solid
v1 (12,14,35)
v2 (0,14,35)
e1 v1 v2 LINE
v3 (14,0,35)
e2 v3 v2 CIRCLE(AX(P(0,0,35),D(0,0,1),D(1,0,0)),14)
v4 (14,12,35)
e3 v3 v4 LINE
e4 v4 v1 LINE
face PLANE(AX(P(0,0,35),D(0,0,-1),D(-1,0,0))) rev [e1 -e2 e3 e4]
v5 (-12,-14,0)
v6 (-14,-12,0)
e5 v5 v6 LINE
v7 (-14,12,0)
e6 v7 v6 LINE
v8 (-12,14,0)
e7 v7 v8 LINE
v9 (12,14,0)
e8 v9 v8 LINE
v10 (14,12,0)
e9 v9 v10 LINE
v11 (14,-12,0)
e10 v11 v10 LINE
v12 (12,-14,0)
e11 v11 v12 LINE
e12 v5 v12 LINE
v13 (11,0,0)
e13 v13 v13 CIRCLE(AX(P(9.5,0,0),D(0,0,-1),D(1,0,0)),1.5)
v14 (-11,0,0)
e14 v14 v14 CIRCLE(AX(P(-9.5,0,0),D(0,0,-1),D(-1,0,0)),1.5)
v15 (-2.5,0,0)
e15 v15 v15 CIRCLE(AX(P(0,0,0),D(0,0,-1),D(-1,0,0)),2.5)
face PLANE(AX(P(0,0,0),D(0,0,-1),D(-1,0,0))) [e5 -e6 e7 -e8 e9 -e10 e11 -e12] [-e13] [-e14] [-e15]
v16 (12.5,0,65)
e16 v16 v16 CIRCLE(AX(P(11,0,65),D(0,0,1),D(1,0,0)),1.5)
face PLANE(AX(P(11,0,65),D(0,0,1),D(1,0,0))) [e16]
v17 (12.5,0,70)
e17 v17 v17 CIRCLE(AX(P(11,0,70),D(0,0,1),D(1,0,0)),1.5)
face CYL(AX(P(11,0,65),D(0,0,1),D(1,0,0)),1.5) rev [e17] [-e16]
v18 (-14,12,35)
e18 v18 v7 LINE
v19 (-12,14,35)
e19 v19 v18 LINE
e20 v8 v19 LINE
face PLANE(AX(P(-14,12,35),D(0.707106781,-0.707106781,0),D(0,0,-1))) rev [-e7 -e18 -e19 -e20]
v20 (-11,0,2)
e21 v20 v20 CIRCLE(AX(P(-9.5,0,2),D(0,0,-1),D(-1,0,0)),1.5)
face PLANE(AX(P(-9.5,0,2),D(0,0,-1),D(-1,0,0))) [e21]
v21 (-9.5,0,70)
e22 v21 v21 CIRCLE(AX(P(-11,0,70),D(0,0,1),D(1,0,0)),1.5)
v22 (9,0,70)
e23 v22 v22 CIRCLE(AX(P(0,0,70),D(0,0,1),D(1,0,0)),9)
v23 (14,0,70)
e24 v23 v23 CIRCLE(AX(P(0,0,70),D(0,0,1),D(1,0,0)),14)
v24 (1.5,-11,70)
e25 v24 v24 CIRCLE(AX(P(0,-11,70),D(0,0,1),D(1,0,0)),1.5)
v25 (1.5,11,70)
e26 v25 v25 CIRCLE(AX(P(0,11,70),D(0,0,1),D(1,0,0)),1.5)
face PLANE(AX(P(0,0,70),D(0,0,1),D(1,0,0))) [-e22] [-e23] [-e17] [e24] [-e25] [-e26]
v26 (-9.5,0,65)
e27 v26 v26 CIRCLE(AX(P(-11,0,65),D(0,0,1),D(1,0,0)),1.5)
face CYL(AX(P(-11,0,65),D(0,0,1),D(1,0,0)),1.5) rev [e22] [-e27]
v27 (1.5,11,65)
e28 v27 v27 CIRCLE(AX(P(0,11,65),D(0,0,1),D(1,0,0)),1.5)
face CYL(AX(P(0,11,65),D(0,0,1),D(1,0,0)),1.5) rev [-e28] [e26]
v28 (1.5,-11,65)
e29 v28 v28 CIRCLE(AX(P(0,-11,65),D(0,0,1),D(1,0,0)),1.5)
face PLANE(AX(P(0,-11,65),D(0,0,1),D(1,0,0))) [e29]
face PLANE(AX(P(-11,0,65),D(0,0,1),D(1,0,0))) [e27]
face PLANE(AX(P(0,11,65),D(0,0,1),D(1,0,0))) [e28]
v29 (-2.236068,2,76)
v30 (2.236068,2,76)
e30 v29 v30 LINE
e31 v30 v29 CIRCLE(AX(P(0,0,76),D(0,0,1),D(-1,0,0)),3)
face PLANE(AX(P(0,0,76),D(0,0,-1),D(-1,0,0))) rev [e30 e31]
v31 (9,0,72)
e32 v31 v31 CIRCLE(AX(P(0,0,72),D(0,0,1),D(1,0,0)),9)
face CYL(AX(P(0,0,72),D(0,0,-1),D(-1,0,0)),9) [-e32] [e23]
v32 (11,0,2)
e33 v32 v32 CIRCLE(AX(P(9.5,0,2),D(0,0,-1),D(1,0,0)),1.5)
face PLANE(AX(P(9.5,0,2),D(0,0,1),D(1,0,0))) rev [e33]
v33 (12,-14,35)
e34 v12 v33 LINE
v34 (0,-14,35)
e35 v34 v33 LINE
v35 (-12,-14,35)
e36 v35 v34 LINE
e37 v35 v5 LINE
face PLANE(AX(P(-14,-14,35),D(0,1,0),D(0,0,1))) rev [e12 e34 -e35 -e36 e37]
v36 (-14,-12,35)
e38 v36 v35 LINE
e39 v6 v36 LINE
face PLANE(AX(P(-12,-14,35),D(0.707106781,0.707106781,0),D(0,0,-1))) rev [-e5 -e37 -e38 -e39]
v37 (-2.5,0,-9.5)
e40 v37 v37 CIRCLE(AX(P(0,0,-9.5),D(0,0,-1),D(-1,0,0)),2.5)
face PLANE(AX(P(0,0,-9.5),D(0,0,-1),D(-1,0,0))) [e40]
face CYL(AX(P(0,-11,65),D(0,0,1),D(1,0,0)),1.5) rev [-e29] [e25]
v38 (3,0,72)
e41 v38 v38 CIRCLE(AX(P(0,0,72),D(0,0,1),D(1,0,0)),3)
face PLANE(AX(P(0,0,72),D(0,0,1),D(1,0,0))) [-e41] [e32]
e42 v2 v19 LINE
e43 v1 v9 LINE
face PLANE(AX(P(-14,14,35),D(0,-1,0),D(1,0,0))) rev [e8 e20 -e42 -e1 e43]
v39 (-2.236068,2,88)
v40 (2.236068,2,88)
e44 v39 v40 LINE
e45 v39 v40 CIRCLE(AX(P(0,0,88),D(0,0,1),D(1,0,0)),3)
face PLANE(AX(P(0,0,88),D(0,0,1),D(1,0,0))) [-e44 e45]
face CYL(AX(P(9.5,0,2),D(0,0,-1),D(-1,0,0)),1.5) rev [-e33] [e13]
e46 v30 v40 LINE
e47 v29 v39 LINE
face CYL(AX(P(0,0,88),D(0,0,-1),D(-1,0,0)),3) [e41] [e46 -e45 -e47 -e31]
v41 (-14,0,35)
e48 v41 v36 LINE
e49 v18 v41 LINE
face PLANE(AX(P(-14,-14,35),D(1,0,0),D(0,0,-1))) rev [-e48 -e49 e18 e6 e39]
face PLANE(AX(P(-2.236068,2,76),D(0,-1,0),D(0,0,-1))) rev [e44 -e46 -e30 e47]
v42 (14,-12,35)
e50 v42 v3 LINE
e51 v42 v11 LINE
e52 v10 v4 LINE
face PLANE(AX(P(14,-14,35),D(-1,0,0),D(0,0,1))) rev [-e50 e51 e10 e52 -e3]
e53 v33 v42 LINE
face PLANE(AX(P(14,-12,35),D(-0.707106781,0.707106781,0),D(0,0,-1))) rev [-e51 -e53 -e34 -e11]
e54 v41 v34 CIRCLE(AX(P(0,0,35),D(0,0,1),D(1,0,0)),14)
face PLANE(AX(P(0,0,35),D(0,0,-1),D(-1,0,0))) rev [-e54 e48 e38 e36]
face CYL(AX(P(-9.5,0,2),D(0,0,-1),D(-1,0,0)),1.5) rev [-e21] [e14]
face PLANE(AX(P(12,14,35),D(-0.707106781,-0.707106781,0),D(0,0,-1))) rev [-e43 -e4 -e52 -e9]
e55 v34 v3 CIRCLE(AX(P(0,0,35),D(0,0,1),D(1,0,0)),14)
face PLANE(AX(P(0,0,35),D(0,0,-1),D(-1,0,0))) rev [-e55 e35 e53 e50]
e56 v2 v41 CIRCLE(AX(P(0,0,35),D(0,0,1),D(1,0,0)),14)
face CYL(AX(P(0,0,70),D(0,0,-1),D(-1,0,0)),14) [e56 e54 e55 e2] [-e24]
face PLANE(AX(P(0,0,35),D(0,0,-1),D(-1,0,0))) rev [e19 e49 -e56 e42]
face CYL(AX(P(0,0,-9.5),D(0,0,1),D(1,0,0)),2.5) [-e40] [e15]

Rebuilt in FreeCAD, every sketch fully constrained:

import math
import FreeCAD as App
import Part
import Sketcher

V = App.Vector


def edges_at(feature, points):
    """Names of the edges that pass closest to the given points."""
    edges = feature.Shape.Edges
    near = lambda p: min(range(len(edges)), key=lambda i: edges[i].distToShape(Part.Vertex(*p))[0])
    return sorted({f"Edge{near(p) + 1}" for p in points})


def add_polygon(sketch, points):
    """Adds a closed chain of lines whose ends are joined by coincident constraints."""
    first, n = sketch.GeometryCount, len(points)
    for a, b in zip(points, points[1:] + points[:1]):
        sketch.addGeometry(Part.LineSegment(App.Vector(*a, 0), App.Vector(*b, 0)), False)
    for i in range(n):
        sketch.addConstraint(Sketcher.Constraint("Coincident", first + i, 2, first + (i + 1) % n, 1))

doc = App.newDocument("Part")
body = doc.addObject("PartDesign::Body", "Body")

sketch1 = body.newObject("Sketcher::SketchObject", "Sketch")
sketch1.AttachmentSupport = (doc.getObject("XY_Plane"), [""])
sketch1.MapMode = "FlatFace"
add_polygon(sketch1, [(-14, 14), (-14, -14), (14, -14), (14, 14)])
sketch1.addConstraint([
    Sketcher.Constraint("Vertical", 0),
    Sketcher.Constraint("Horizontal", 1),
    Sketcher.Constraint("Vertical", 2),
    Sketcher.Constraint("Horizontal", 3),
    Sketcher.Constraint("Symmetric", 0, 2, 2, 2, -1, 1),
    Sketcher.Constraint("Equal", 3, 0),
    Sketcher.Constraint("DistanceX", 1, 1, 1, 2, 28.0),
])
pad1 = body.newObject("PartDesign::Pad", "Pad")
pad1.Profile = sketch1
pad1.Length = 35

sketch2 = body.newObject("Sketcher::SketchObject", "Sketch001")
sketch2.AttachmentSupport = (doc.getObject("XY_Plane"), [""])
sketch2.MapMode = "FlatFace"
sketch2.AttachmentOffset = App.Placement(V(0, 0, 35), App.Rotation())
sketch2.addGeometry(Part.Circle(V(0, 0, 0), V(0, 0, 1), 14), False)
sketch2.addConstraint([
    Sketcher.Constraint("Coincident", 0, 3, -1, 1),
    Sketcher.Constraint("Diameter", 0, 28.0),
])
pad2 = body.newObject("PartDesign::Pad", "Pad001")
pad2.Profile = sketch2
pad2.Length = 35

sketch3 = body.newObject("Sketcher::SketchObject", "Sketch002")
sketch3.AttachmentSupport = (doc.getObject("XY_Plane"), [""])
sketch3.MapMode = "FlatFace"
sketch3.AttachmentOffset = App.Placement(V(0, 0, 70), App.Rotation())
sketch3.addGeometry(Part.Circle(V(0, 0, 0), V(0, 0, 1), 9), False)
sketch3.addConstraint([
    Sketcher.Constraint("Coincident", 0, 3, -1, 1),
    Sketcher.Constraint("Diameter", 0, 18.0),
])
pad3 = body.newObject("PartDesign::Pad", "Pad002")
pad3.Profile = sketch3
pad3.Length = 2

sketch4 = body.newObject("Sketcher::SketchObject", "Sketch003")
sketch4.AttachmentSupport = (doc.getObject("XY_Plane"), [""])
sketch4.MapMode = "FlatFace"
sketch4.AttachmentOffset = App.Placement(V(0, 0, 72), App.Rotation())
sketch4.addGeometry(Part.Circle(V(0, 0, 0), V(0, 0, 1), 3), False)
sketch4.addConstraint([
    Sketcher.Constraint("Coincident", 0, 3, -1, 1),
    Sketcher.Constraint("Diameter", 0, 6.0),
])
pad4 = body.newObject("PartDesign::Pad", "Pad003")
pad4.Profile = sketch4
pad4.Length = 16

sketch5 = body.newObject("Sketcher::SketchObject", "Sketch004")
sketch5.AttachmentSupport = (doc.getObject("XY_Plane"), [""])
sketch5.MapMode = "FlatFace"
sketch5.AttachmentOffset = App.Placement(V(0, 0, 76), App.Rotation())
sketch5.addGeometry([
    Part.LineSegment(V(-2.236068, 2, 0), V(2.236068, 2, 0)),
    Part.ArcOfCircle(Part.Circle(V(0, 0, 0), V(0, 0, 1), 3), math.radians(41.810315), math.radians(138.189685)),
], False)
sketch5.addConstraint([
    Sketcher.Constraint("Coincident", 0, 1, 1, 2),
    Sketcher.Constraint("Coincident", 1, 1, 0, 2),
    Sketcher.Constraint("Horizontal", 0),
    Sketcher.Constraint("Coincident", 1, 3, -1, 1),
    Sketcher.Constraint("Radius", 1, 3.0),
    Sketcher.Constraint("DistanceY", -1, 1, 0, 1, 2.0),
])
pocket1 = body.newObject("PartDesign::Pocket", "Pocket")
pocket1.Profile = sketch5
pocket1.Length = 12
pocket1.Reversed = True

sketch6 = body.newObject("Sketcher::SketchObject", "Sketch005")
sketch6.AttachmentSupport = (doc.getObject("XY_Plane"), [""])
sketch6.MapMode = "FlatFace"
sketch6.addGeometry([
    Part.Circle(V(-9.5, 0, 0), V(0, 0, 1), 1.5),
    Part.Circle(V(9.5, 0, 0), V(0, 0, 1), 1.5),
], False)
sketch6.addConstraint([
    Sketcher.Constraint("Equal", 0, 1),
    Sketcher.Constraint("Symmetric", 0, 3, 1, 3, -1, 1),
    Sketcher.Constraint("PointOnObject", 0, 3, -1),
    Sketcher.Constraint("Diameter", 0, 3.0),
    Sketcher.Constraint("DistanceX", 0, 3, 1, 3, 19.0),
])
pocket2 = body.newObject("PartDesign::Pocket", "Pocket001")
pocket2.Profile = sketch6
pocket2.Length = 2
pocket2.Reversed = True

sketch7 = body.newObject("Sketcher::SketchObject", "Sketch006")
sketch7.AttachmentSupport = (doc.getObject("XY_Plane"), [""])
sketch7.MapMode = "FlatFace"
sketch7.addGeometry(Part.Circle(V(0, 0, 0), V(0, 0, 1), 2.5), False)
sketch7.addConstraint([
    Sketcher.Constraint("Coincident", 0, 3, -1, 1),
    Sketcher.Constraint("Diameter", 0, 5.0),
])
pad5 = body.newObject("PartDesign::Pad", "Pad004")
pad5.Profile = sketch7
pad5.Length = 9.5
pad5.Reversed = True
doc.recompute()

chamfer = body.newObject("PartDesign::Chamfer", "Chamfer")
chamfer.Base = (pad5, edges_at(pad5, [
    (14, -14, 17.5),
    (-14, -14, 17.5),
    (-14, 14, 17.5),
    (14, 14, 17.5),
]))
chamfer.Size = 2

sketch8 = body.newObject("Sketcher::SketchObject", "Sketch007")
sketch8.AttachmentSupport = (doc.getObject("XY_Plane"), [""])
sketch8.MapMode = "FlatFace"
sketch8.AttachmentOffset = App.Placement(V(0, 0, 70), App.Rotation())
sketch8.addGeometry([
    Part.Circle(V(0, 11, 0), V(0, 0, 1), 1.5),
    Part.Circle(V(11, 0, 0), V(0, 0, 1), 1.5),
    Part.Circle(V(0, -11, 0), V(0, 0, 1), 1.5),
    Part.Circle(V(-11, 0, 0), V(0, 0, 1), 1.5),
], False)
sketch8.addConstraint([
    Sketcher.Constraint("Equal", 0, 1),
    Sketcher.Constraint("Equal", 1, 2),
    Sketcher.Constraint("Equal", 2, 3),
    Sketcher.Constraint("Symmetric", 0, 3, 2, 3, -1, 1),
    Sketcher.Constraint("Symmetric", 1, 3, 3, 3, -1, 1),
    Sketcher.Constraint("PointOnObject", 0, 3, -2),
    Sketcher.Constraint("PointOnObject", 1, 3, -1),
    Sketcher.Constraint("Diameter", 0, 3.0),
    Sketcher.Constraint("DistanceY", -1, 1, 0, 3, 11.0),
    Sketcher.Constraint("DistanceX", -1, 1, 1, 3, 11.0),
])
pocket3 = body.newObject("PartDesign::Pocket", "Pocket002")
pocket3.Profile = sketch8
pocket3.Length = 5

doc.recompute()
